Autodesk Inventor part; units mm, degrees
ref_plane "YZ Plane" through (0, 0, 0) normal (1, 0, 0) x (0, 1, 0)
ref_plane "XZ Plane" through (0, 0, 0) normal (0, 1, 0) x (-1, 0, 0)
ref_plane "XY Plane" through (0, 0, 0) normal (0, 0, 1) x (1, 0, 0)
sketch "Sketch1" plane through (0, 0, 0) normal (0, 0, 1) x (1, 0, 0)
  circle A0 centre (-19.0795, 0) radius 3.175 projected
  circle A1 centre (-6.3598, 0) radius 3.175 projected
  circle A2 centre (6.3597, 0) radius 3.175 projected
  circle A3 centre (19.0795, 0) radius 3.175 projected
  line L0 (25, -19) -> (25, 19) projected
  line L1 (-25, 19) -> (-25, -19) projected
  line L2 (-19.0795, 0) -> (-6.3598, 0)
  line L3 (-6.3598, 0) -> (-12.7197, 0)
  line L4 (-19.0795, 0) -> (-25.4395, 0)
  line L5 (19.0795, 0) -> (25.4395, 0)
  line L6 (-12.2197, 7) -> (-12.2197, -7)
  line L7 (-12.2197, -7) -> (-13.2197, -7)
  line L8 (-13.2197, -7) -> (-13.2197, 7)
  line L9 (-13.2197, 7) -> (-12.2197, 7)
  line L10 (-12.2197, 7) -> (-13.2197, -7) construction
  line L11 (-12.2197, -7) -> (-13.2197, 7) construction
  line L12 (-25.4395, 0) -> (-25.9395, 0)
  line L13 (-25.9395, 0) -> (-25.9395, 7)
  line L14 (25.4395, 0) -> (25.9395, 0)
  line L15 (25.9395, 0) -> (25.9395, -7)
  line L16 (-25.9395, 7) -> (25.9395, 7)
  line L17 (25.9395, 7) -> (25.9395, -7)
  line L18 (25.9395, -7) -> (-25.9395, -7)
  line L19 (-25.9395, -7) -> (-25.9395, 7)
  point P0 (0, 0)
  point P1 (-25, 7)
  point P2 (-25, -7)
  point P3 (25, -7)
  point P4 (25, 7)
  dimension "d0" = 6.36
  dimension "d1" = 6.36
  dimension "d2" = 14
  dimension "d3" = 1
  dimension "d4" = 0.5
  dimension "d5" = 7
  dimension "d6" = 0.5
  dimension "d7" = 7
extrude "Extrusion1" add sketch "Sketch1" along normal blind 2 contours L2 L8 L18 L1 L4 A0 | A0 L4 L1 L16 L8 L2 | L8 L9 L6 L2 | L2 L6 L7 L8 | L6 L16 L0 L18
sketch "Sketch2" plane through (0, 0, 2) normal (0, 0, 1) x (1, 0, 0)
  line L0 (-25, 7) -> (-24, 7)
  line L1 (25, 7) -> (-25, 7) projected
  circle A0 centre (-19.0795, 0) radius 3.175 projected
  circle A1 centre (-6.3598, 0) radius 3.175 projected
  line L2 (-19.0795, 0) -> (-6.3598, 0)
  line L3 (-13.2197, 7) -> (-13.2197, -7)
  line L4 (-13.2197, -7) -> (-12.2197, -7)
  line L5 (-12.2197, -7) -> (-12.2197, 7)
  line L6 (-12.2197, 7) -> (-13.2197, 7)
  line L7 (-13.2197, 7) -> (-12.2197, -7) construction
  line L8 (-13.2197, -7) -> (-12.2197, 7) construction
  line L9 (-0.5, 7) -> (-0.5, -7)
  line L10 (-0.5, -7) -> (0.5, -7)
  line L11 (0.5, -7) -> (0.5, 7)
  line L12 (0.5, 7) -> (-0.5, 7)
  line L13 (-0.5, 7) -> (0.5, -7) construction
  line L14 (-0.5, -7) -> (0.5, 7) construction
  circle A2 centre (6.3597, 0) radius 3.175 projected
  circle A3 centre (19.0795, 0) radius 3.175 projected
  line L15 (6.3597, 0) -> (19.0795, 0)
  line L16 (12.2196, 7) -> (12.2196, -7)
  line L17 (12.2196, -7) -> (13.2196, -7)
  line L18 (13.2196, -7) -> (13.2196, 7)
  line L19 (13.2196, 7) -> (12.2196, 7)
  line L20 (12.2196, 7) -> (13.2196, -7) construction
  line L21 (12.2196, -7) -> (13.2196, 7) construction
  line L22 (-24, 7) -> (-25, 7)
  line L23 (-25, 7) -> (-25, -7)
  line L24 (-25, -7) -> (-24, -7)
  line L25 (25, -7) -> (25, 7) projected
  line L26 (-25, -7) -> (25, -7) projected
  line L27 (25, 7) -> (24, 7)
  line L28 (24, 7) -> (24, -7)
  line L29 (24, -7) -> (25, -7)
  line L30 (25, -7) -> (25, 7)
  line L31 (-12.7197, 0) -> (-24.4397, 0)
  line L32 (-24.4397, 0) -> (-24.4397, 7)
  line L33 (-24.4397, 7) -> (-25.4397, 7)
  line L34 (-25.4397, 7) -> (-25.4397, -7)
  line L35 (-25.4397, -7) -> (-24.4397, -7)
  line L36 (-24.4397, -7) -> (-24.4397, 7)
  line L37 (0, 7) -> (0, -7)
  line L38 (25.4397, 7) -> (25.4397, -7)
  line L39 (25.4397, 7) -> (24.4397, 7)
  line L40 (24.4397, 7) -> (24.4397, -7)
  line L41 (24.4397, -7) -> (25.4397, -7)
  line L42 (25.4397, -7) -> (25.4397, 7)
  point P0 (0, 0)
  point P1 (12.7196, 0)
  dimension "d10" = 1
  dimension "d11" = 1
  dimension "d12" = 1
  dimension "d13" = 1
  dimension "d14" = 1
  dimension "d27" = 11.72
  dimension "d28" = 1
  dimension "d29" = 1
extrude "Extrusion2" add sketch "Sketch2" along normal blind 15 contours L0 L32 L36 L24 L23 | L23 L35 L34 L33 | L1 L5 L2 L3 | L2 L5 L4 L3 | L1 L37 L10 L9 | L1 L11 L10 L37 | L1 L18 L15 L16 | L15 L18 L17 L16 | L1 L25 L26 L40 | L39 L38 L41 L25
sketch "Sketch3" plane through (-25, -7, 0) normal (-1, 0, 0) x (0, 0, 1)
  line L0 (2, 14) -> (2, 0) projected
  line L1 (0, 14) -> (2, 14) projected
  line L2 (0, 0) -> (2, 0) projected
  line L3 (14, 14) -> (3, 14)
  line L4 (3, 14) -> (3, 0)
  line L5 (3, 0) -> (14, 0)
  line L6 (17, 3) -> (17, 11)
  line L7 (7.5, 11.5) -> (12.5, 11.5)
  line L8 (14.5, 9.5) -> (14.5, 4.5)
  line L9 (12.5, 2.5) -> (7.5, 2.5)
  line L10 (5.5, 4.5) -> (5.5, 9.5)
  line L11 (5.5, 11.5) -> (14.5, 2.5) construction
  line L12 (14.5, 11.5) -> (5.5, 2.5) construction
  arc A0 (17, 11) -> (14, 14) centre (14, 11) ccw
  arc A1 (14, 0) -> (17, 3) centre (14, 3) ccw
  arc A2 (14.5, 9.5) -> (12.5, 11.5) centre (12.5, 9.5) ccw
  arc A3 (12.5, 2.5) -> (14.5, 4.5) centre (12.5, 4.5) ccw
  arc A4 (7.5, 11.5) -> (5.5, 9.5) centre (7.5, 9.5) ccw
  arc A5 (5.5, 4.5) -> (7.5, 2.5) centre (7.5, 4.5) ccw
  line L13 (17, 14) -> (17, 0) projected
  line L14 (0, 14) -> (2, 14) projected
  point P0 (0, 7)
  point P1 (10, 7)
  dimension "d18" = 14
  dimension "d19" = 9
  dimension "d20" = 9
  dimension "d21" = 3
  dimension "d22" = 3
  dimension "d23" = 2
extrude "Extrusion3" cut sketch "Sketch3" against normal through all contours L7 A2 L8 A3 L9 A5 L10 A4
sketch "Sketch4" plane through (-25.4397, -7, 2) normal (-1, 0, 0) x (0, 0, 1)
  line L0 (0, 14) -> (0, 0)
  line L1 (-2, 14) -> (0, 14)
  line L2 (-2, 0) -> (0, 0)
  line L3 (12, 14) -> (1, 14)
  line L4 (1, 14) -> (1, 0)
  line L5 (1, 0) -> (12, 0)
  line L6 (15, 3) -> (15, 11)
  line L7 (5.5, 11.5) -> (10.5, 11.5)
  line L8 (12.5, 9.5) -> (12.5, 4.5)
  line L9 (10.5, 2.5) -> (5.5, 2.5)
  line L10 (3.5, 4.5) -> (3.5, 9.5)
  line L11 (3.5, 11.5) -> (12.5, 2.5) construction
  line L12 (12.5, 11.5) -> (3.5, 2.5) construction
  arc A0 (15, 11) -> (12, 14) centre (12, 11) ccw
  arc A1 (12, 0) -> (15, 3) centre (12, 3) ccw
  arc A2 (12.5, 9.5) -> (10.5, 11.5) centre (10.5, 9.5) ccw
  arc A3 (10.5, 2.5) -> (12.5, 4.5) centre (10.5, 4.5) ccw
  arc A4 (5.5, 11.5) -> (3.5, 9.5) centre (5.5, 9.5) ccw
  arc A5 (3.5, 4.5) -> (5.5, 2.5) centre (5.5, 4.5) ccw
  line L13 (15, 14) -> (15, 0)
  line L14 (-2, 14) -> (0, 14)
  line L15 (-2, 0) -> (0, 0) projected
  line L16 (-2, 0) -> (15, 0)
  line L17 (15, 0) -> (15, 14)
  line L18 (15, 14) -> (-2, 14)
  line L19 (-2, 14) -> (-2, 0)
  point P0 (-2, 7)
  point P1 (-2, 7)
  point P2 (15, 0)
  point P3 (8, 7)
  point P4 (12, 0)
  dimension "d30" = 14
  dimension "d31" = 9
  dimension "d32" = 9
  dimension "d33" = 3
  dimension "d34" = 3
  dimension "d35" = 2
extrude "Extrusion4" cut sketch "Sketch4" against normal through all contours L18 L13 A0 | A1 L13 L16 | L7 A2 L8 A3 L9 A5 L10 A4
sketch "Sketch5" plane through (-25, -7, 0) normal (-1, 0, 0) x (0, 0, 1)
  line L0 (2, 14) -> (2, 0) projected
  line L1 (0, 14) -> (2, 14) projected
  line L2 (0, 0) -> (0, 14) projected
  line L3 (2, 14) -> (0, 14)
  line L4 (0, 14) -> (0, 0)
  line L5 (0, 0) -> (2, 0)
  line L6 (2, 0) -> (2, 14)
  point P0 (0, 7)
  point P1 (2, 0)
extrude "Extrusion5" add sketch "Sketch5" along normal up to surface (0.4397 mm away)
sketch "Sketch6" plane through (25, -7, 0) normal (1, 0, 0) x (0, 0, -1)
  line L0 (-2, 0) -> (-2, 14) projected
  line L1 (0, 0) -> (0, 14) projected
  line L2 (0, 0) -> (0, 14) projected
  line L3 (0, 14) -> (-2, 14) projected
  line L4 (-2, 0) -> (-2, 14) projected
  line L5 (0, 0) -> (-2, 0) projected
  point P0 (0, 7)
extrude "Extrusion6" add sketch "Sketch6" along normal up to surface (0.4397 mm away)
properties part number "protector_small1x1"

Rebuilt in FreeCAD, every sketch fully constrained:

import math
import FreeCAD as App
import Part
import Sketcher
Q = App.Units.Quantity


def add_polygon(sketch, points):
    """Adds a closed chain of lines whose ends are joined by coincident constraints."""
    first, n = sketch.GeometryCount, len(points)
    for a, b in zip(points, points[1:] + points[:1]):
        sketch.addGeometry(Part.LineSegment(App.Vector(*a, 0), App.Vector(*b, 0)), False)
    for i in range(n):
        sketch.addConstraint(Sketcher.Constraint("Coincident", first + i, 2, first + (i + 1) % n, 1))

doc = App.newDocument("Part")
body = doc.addObject("PartDesign::Body", "Body")

sketch1 = body.newObject("Sketcher::SketchObject", "Sketch")
sketch1.AttachmentSupport = (doc.getObject("XY_Plane"), [""])
sketch1.MapMode = "FlatFace"
add_polygon(sketch1, [(-25, -7), (25, -7), (25, 0), (25, 7), (-25, 7)])
sketch1.addGeometry(Part.Circle(App.Vector(-19.1, 0, 0), App.Vector(0, 0, 1), 3.2), False)
sketch1.addGeometry(Part.Circle(App.Vector(-6.4, 0, 0), App.Vector(0, 0, 1), 3.2), False)
sketch1.addGeometry(Part.Circle(App.Vector(6.4, 0, 0), App.Vector(0, 0, 1), 3.2), False)
sketch1.addGeometry(Part.Circle(App.Vector(19.1, 0, 0), App.Vector(0, 0, 1), 3.2), False)
sketch1.addConstraint(Sketcher.Constraint("Horizontal", 0))
sketch1.addConstraint(Sketcher.Constraint("Vertical", 1))
sketch1.addConstraint(Sketcher.Constraint("Vertical", 2))
sketch1.addConstraint(Sketcher.Constraint("Horizontal", 3))
sketch1.addConstraint(Sketcher.Constraint("Vertical", 4))
sketch1.addConstraint(Sketcher.Constraint("Equal", 5, 6))
sketch1.addConstraint(Sketcher.Constraint("Equal", 6, 7))
sketch1.addConstraint(Sketcher.Constraint("Equal", 7, 8))
sketch1.addConstraint(Sketcher.Constraint("Symmetric", 6, 3, 7, 3, -1, 1))
sketch1.addConstraint(Sketcher.Constraint("Symmetric", 5, 3, 8, 3, -1, 1))
sketch1.addConstraint(Sketcher.Constraint("Symmetric", 0, 2, 3, 2, -1, 1))
sketch1.addConstraint(Sketcher.Constraint("PointOnObject", 5, 3, -1))
sketch1.addConstraint(Sketcher.Constraint("PointOnObject", 6, 3, -1))
sketch1.addConstraint(Sketcher.Constraint("PointOnObject", 1, 2, -1))
sketch1.addConstraint(Sketcher.Constraint("DistanceY", 1, 1, 1, 2, Q("7 mm")))
sketch1.addConstraint(Sketcher.Constraint("Diameter", 5, Q("6.35 mm")))
sketch1.addConstraint(Sketcher.Constraint("DistanceX", 0, 1, 0, 2, Q("50 mm")))
sketch1.addConstraint(Sketcher.Constraint("DistanceX", 6, 3, -1, 1, Q("6.3598 mm")))
sketch1.addConstraint(Sketcher.Constraint("DistanceX", 5, 3, 8, 3, Q("38.159 mm")))
pad1 = body.newObject("PartDesign::Pad", "Pad")
pad1.Profile = sketch1
pad1.Length = 2

sketch2 = body.newObject("Sketcher::SketchObject", "Sketch001")
sketch2.AttachmentSupport = (doc.getObject("XY_Plane"), [""])
sketch2.MapMode = "FlatFace"
sketch2.AttachmentOffset = App.Placement(App.Vector(0, 0, 2), App.Rotation())
add_polygon(sketch2, [(-24.4, 7), (-25.4, 7), (-25.4, -7), (-24.4, -7)])
add_polygon(sketch2, [(-12.2, 7), (-13.2, 7), (-13.2, -7), (-12.2, -7)])
add_polygon(sketch2, [(-0.5, 7), (-0.5, -7), (0.5, -7), (0.5, 7)])
add_polygon(sketch2, [(13.2, 7), (12.2, 7), (12.2, -7), (13.2, -7)])
add_polygon(sketch2, [(24.4, 7), (24.4, -7), (25.4, -7), (25.4, 7)])
sketch2.addConstraint(Sketcher.Constraint("Horizontal", 0))
sketch2.addConstraint(Sketcher.Constraint("Vertical", 1))
sketch2.addConstraint(Sketcher.Constraint("Horizontal", 2))
sketch2.addConstraint(Sketcher.Constraint("Vertical", 3))
sketch2.addConstraint(Sketcher.Constraint("Horizontal", 4))
sketch2.addConstraint(Sketcher.Constraint("Vertical", 5))
sketch2.addConstraint(Sketcher.Constraint("Horizontal", 6))
sketch2.addConstraint(Sketcher.Constraint("Vertical", 7))
sketch2.addConstraint(Sketcher.Constraint("Vertical", 8))
sketch2.addConstraint(Sketcher.Constraint("Horizontal", 9))
sketch2.addConstraint(Sketcher.Constraint("Vertical", 10))
sketch2.addConstraint(Sketcher.Constraint("Horizontal", 11))
sketch2.addConstraint(Sketcher.Constraint("Horizontal", 12))
sketch2.addConstraint(Sketcher.Constraint("Vertical", 13))
sketch2.addConstraint(Sketcher.Constraint("Horizontal", 14))
sketch2.addConstraint(Sketcher.Constraint("Vertical", 15))
sketch2.addConstraint(Sketcher.Constraint("Vertical", 16))
sketch2.addConstraint(Sketcher.Constraint("Horizontal", 17))
sketch2.addConstraint(Sketcher.Constraint("Vertical", 18))
sketch2.addConstraint(Sketcher.Constraint("Horizontal", 19))
sketch2.addConstraint(Sketcher.Constraint("Symmetric", 8, 2, 10, 2, -1, 1))
sketch2.addConstraint(Sketcher.Constraint("Symmetric", 6, 2, 12, 2, -1, 1))
sketch2.addConstraint(Sketcher.Constraint("Symmetric", 4, 2, 14, 2, -1, 1))
sketch2.addConstraint(Sketcher.Constraint("Symmetric", 3, 2, 16, 2, -1, 1))
sketch2.addConstraint(Sketcher.Constraint("Symmetric", 1, 2, 18, 2, -1, 1))
sketch2.addConstraint(Sketcher.Constraint("Horizontal", 3, 2, 4, 2))
sketch2.addConstraint(Sketcher.Constraint("Horizontal", 2, 2, 5, 2))
sketch2.addConstraint(Sketcher.Constraint("Horizontal", 6, 2, 8, 2))
sketch2.addConstraint(Sketcher.Constraint("Horizontal", 7, 2, 10, 2))
sketch2.addConstraint(Sketcher.Constraint("Equal", 2, 4))
sketch2.addConstraint(Sketcher.Constraint("Equal", 6, 9))
sketch2.addConstraint(Sketcher.Constraint("DistanceX", 0, 2, 0, 1, Q("1 mm")))
sketch2.addConstraint(Sketcher.Constraint("DistanceY", 1, 2, 1, 1, Q("14 mm")))
sketch2.addConstraint(Sketcher.Constraint("DistanceX", 6, 2, 8, 2, Q("11.7197 mm")))
sketch2.addConstraint(Sketcher.Constraint("DistanceX", 3, 2, 4, 2, Q("11.22 mm")))
pad2 = body.newObject("PartDesign::Pad", "Pad001")
pad2.Profile = sketch2
pad2.Length = 15

sketch3 = body.newObject("Sketcher::SketchObject", "Sketch002")
sketch3.AttachmentSupport = (doc.getObject("YZ_Plane"), [""])
sketch3.MapMode = "FlatFace"
sketch3.AttachmentOffset = App.Placement(App.Vector(0, 0, -25), App.Rotation())
sketch3.addGeometry(Part.LineSegment(App.Vector(4.5, 12.5, 0), App.Vector(4.5, 7.5, 0)), False)
sketch3.addGeometry(Part.ArcOfCircle(Part.Circle(App.Vector(2.5, 7.5, 0), App.Vector(0, 0, 1), 2), math.radians(-90), math.radians(0)), False)
sketch3.addGeometry(Part.LineSegment(App.Vector(2.5, 5.5, 0), App.Vector(-2.5, 5.5, 0)), False)
sketch3.addGeometry(Part.ArcOfCircle(Part.Circle(App.Vector(-2.5, 7.5, 0), App.Vector(0, 0, 1), 2), math.radians(180), math.radians(270)), False)
sketch3.addGeometry(Part.LineSegment(App.Vector(-4.5, 7.5, 0), App.Vector(-4.5, 12.5, 0)), False)
sketch3.addGeometry(Part.ArcOfCircle(Part.Circle(App.Vector(-2.5, 12.5, 0), App.Vector(0, 0, 1), 2), math.radians(90), math.radians(180)), False)
sketch3.addGeometry(Part.LineSegment(App.Vector(-2.5, 14.5, 0), App.Vector(2.5, 14.5, 0)), False)
sketch3.addGeometry(Part.ArcOfCircle(Part.Circle(App.Vector(2.5, 12.5, 0), App.Vector(0, 0, 1), 2), math.radians(0), math.radians(90)), False)
sketch3.addConstraint(Sketcher.Constraint("Tangent", 0, 2, 1, 2))
sketch3.addConstraint(Sketcher.Constraint("Tangent", 1, 1, 2, 1))
sketch3.addConstraint(Sketcher.Constraint("Tangent", 2, 2, 3, 2))
sketch3.addConstraint(Sketcher.Constraint("Tangent", 3, 1, 4, 1))
sketch3.addConstraint(Sketcher.Constraint("Tangent", 4, 2, 5, 2))
sketch3.addConstraint(Sketcher.Constraint("Tangent", 5, 1, 6, 1))
sketch3.addConstraint(Sketcher.Constraint("Tangent", 6, 2, 7, 2))
sketch3.addConstraint(Sketcher.Constraint("Tangent", 7, 1, 0, 1))
sketch3.addConstraint(Sketcher.Constraint("Vertical", 0))
sketch3.addConstraint(Sketcher.Constraint("Horizontal", 2))
sketch3.addConstraint(Sketcher.Constraint("Vertical", 4))
sketch3.addConstraint(Sketcher.Constraint("Horizontal", 6))
sketch3.addConstraint(Sketcher.Constraint("Equal", 1, 3))
sketch3.addConstraint(Sketcher.Constraint("Equal", 3, 5))
sketch3.addConstraint(Sketcher.Constraint("Equal", 5, 7))
sketch3.addConstraint(Sketcher.Constraint("Equal", 6, 0))
sketch3.addConstraint(Sketcher.Constraint("Radius", 1, Q("2 mm")))
sketch3.addConstraint(Sketcher.Constraint("DistanceX", 2, 2, 2, 1, Q("5 mm")))
sketch3.addConstraint(Sketcher.Constraint("DistanceX", -1, 1, 1, 3, Q("2.5 mm")))
sketch3.addConstraint(Sketcher.Constraint("DistanceY", -1, 1, 1, 3, Q("7.5 mm")))
pocket1 = body.newObject("PartDesign::Pocket", "Pocket")
pocket1.Profile = sketch3
pocket1.Type = "ThroughAll"
pocket1.Reversed = True

sketch4 = body.newObject("Sketcher::SketchObject", "Sketch003")
sketch4.AttachmentSupport = (doc.getObject("YZ_Plane"), [""])
sketch4.MapMode = "FlatFace"
sketch4.AttachmentOffset = App.Placement(App.Vector(0, 0, -25.4397), App.Rotation())
sketch4.addGeometry(Part.LineSegment(App.Vector(7, 17, 0), App.Vector(7, 14, 0)), False)
sketch4.addGeometry(Part.ArcOfCircle(Part.Circle(App.Vector(4, 14, 0), App.Vector(0, 0, 1), 3), math.radians(0), math.radians(90)), False)
sketch4.addGeometry(Part.LineSegment(App.Vector(4, 17, 0), App.Vector(7, 17, 0)), False)
sketch4.addGeometry(Part.ArcOfCircle(Part.Circle(App.Vector(-4, 14, 0), App.Vector(0, 0, 1), 3), math.radians(90), math.radians(180)), False)
sketch4.addGeometry(Part.LineSegment(App.Vector(-7, 14, 0), App.Vector(-7, 17, 0)), False)
sketch4.addGeometry(Part.LineSegment(App.Vector(-7, 17, 0), App.Vector(-4, 17, 0)), False)
sketch4.addGeometry(Part.LineSegment(App.Vector(4.5, 12.5, 0), App.Vector(4.5, 7.5, 0)), False)
sketch4.addGeometry(Part.ArcOfCircle(Part.Circle(App.Vector(2.5, 7.5, 0), App.Vector(0, 0, 1), 2), math.radians(-90), math.radians(0)), False)
sketch4.addGeometry(Part.LineSegment(App.Vector(2.5, 5.5, 0), App.Vector(-2.5, 5.5, 0)), False)
sketch4.addGeometry(Part.ArcOfCircle(Part.Circle(App.Vector(-2.5, 7.5, 0), App.Vector(0, 0, 1), 2), math.radians(180), math.radians(270)), False)
sketch4.addGeometry(Part.LineSegment(App.Vector(-4.5, 7.5, 0), App.Vector(-4.5, 12.5, 0)), False)
sketch4.addGeometry(Part.ArcOfCircle(Part.Circle(App.Vector(-2.5, 12.5, 0), App.Vector(0, 0, 1), 2), math.radians(90), math.radians(180)), False)
sketch4.addGeometry(Part.LineSegment(App.Vector(-2.5, 14.5, 0), App.Vector(2.5, 14.5, 0)), False)
sketch4.addGeometry(Part.ArcOfCircle(Part.Circle(App.Vector(2.5, 12.5, 0), App.Vector(0, 0, 1), 2), math.radians(0), math.radians(90)), False)
sketch4.addConstraint(Sketcher.Constraint("Tangent", 0, 2, 1, 1))
sketch4.addConstraint(Sketcher.Constraint("Tangent", 1, 2, 2, 1))
sketch4.addConstraint(Sketcher.Constraint("Coincident", 2, 2, 0, 1))
sketch4.addConstraint(Sketcher.Constraint("Tangent", 3, 2, 4, 1))
sketch4.addConstraint(Sketcher.Constraint("Coincident", 4, 2, 5, 1))
sketch4.addConstraint(Sketcher.Constraint("Tangent", 5, 2, 3, 1))
sketch4.addConstraint(Sketcher.Constraint("Tangent", 6, 2, 7, 2))
sketch4.addConstraint(Sketcher.Constraint("Tangent", 7, 1, 8, 1))
sketch4.addConstraint(Sketcher.Constraint("Tangent", 8, 2, 9, 2))
sketch4.addConstraint(Sketcher.Constraint("Tangent", 9, 1, 10, 1))
sketch4.addConstraint(Sketcher.Constraint("Tangent", 10, 2, 11, 2))
sketch4.addConstraint(Sketcher.Constraint("Tangent", 11, 1, 12, 1))
sketch4.addConstraint(Sketcher.Constraint("Tangent", 12, 2, 13, 2))
sketch4.addConstraint(Sketcher.Constraint("Tangent", 13, 1, 6, 1))
sketch4.addConstraint(Sketcher.Constraint("Vertical", 0))
sketch4.addConstraint(Sketcher.Constraint("Horizontal", 2))
sketch4.addConstraint(Sketcher.Constraint("Vertical", 4))
sketch4.addConstraint(Sketcher.Constraint("Horizontal", 5))
sketch4.addConstraint(Sketcher.Constraint("Vertical", 6))
sketch4.addConstraint(Sketcher.Constraint("Horizontal", 8))
sketch4.addConstraint(Sketcher.Constraint("Vertical", 10))
sketch4.addConstraint(Sketcher.Constraint("Horizontal", 12))
sketch4.addConstraint(Sketcher.Constraint("Equal", 1, 3))
sketch4.addConstraint(Sketcher.Constraint("Equal", 7, 9))
sketch4.addConstraint(Sketcher.Constraint("Equal", 9, 11))
sketch4.addConstraint(Sketcher.Constraint("Equal", 11, 13))
sketch4.addConstraint(Sketcher.Constraint("Symmetric", 1, 3, 3, 3, -2))
sketch4.addConstraint(Sketcher.Constraint("Equal", 12, 6))
sketch4.addConstraint(Sketcher.Constraint("Radius", 1, Q("3 mm")))
sketch4.addConstraint(Sketcher.Constraint("Radius", 7, Q("2 mm")))
sketch4.addConstraint(Sketcher.Constraint("DistanceY", -1, 1, 1, 3, Q("14 mm")))
sketch4.addConstraint(Sketcher.Constraint("DistanceX", 8, 2, 8, 1, Q("5 mm")))
sketch4.addConstraint(Sketcher.Constraint("DistanceX", -1, 1, 1, 3, Q("4 mm")))
sketch4.addConstraint(Sketcher.Constraint("DistanceX", -1, 1, 7, 3, Q("2.5 mm")))
sketch4.addConstraint(Sketcher.Constraint("DistanceY", -1, 1, 7, 3, Q("7.5 mm")))
pocket2 = body.newObject("PartDesign::Pocket", "Pocket001")
pocket2.Profile = sketch4
pocket2.Type = "ThroughAll"
pocket2.Reversed = True

sketch5 = body.newObject("Sketcher::SketchObject", "Sketch004")
sketch5.AttachmentSupport = (doc.getObject("YZ_Plane"), [""])
sketch5.MapMode = "FlatFace"
sketch5.AttachmentOffset = App.Placement(App.Vector(0, 0, -25), App.Rotation())
add_polygon(sketch5, [(-7, 2), (7, 2), (7, 0), (-7, 0)])
sketch5.addConstraint(Sketcher.Constraint("Horizontal", 0))
sketch5.addConstraint(Sketcher.Constraint("Vertical", 1))
sketch5.addConstraint(Sketcher.Constraint("Horizontal", 2))
sketch5.addConstraint(Sketcher.Constraint("Vertical", 3))
sketch5.addConstraint(Sketcher.Constraint("Symmetric", 1, 2, 2, 2, -1, 1))
sketch5.addConstraint(Sketcher.Constraint("DistanceX", 0, 1, 0, 2, Q("14 mm")))
sketch5.addConstraint(Sketcher.Constraint("DistanceY", 1, 2, 1, 1, Q("2 mm")))
pad3 = body.newObject("PartDesign::Pad", "Pad002")
pad3.Profile = sketch5
pad3.Length = 0.4397
pad3.Reversed = True

sketch6 = body.newObject("Sketcher::SketchObject", "Sketch005")
sketch6.AttachmentSupport = (doc.getObject("YZ_Plane"), [""])
sketch6.MapMode = "FlatFace"
sketch6.AttachmentOffset = App.Placement(App.Vector(0, 0, 25), App.Rotation())
add_polygon(sketch6, [(7, 2), (-7, 2), (-7, 0), (7, 0)])
sketch6.addConstraint(Sketcher.Constraint("Horizontal", 0))
sketch6.addConstraint(Sketcher.Constraint("Vertical", 1))
sketch6.addConstraint(Sketcher.Constraint("Horizontal", 2))
sketch6.addConstraint(Sketcher.Constraint("Vertical", 3))
sketch6.addConstraint(Sketcher.Constraint("Symmetric", 1, 2, 2, 2, -1, 1))
sketch6.addConstraint(Sketcher.Constraint("DistanceX", 0, 2, 0, 1, Q("14 mm")))
sketch6.addConstraint(Sketcher.Constraint("DistanceY", 1, 2, 1, 1, Q("2 mm")))
pad4 = body.newObject("PartDesign::Pad", "Pad003")
pad4.Profile = sketch6
pad4.Length = 0.4397

doc.recompute()
